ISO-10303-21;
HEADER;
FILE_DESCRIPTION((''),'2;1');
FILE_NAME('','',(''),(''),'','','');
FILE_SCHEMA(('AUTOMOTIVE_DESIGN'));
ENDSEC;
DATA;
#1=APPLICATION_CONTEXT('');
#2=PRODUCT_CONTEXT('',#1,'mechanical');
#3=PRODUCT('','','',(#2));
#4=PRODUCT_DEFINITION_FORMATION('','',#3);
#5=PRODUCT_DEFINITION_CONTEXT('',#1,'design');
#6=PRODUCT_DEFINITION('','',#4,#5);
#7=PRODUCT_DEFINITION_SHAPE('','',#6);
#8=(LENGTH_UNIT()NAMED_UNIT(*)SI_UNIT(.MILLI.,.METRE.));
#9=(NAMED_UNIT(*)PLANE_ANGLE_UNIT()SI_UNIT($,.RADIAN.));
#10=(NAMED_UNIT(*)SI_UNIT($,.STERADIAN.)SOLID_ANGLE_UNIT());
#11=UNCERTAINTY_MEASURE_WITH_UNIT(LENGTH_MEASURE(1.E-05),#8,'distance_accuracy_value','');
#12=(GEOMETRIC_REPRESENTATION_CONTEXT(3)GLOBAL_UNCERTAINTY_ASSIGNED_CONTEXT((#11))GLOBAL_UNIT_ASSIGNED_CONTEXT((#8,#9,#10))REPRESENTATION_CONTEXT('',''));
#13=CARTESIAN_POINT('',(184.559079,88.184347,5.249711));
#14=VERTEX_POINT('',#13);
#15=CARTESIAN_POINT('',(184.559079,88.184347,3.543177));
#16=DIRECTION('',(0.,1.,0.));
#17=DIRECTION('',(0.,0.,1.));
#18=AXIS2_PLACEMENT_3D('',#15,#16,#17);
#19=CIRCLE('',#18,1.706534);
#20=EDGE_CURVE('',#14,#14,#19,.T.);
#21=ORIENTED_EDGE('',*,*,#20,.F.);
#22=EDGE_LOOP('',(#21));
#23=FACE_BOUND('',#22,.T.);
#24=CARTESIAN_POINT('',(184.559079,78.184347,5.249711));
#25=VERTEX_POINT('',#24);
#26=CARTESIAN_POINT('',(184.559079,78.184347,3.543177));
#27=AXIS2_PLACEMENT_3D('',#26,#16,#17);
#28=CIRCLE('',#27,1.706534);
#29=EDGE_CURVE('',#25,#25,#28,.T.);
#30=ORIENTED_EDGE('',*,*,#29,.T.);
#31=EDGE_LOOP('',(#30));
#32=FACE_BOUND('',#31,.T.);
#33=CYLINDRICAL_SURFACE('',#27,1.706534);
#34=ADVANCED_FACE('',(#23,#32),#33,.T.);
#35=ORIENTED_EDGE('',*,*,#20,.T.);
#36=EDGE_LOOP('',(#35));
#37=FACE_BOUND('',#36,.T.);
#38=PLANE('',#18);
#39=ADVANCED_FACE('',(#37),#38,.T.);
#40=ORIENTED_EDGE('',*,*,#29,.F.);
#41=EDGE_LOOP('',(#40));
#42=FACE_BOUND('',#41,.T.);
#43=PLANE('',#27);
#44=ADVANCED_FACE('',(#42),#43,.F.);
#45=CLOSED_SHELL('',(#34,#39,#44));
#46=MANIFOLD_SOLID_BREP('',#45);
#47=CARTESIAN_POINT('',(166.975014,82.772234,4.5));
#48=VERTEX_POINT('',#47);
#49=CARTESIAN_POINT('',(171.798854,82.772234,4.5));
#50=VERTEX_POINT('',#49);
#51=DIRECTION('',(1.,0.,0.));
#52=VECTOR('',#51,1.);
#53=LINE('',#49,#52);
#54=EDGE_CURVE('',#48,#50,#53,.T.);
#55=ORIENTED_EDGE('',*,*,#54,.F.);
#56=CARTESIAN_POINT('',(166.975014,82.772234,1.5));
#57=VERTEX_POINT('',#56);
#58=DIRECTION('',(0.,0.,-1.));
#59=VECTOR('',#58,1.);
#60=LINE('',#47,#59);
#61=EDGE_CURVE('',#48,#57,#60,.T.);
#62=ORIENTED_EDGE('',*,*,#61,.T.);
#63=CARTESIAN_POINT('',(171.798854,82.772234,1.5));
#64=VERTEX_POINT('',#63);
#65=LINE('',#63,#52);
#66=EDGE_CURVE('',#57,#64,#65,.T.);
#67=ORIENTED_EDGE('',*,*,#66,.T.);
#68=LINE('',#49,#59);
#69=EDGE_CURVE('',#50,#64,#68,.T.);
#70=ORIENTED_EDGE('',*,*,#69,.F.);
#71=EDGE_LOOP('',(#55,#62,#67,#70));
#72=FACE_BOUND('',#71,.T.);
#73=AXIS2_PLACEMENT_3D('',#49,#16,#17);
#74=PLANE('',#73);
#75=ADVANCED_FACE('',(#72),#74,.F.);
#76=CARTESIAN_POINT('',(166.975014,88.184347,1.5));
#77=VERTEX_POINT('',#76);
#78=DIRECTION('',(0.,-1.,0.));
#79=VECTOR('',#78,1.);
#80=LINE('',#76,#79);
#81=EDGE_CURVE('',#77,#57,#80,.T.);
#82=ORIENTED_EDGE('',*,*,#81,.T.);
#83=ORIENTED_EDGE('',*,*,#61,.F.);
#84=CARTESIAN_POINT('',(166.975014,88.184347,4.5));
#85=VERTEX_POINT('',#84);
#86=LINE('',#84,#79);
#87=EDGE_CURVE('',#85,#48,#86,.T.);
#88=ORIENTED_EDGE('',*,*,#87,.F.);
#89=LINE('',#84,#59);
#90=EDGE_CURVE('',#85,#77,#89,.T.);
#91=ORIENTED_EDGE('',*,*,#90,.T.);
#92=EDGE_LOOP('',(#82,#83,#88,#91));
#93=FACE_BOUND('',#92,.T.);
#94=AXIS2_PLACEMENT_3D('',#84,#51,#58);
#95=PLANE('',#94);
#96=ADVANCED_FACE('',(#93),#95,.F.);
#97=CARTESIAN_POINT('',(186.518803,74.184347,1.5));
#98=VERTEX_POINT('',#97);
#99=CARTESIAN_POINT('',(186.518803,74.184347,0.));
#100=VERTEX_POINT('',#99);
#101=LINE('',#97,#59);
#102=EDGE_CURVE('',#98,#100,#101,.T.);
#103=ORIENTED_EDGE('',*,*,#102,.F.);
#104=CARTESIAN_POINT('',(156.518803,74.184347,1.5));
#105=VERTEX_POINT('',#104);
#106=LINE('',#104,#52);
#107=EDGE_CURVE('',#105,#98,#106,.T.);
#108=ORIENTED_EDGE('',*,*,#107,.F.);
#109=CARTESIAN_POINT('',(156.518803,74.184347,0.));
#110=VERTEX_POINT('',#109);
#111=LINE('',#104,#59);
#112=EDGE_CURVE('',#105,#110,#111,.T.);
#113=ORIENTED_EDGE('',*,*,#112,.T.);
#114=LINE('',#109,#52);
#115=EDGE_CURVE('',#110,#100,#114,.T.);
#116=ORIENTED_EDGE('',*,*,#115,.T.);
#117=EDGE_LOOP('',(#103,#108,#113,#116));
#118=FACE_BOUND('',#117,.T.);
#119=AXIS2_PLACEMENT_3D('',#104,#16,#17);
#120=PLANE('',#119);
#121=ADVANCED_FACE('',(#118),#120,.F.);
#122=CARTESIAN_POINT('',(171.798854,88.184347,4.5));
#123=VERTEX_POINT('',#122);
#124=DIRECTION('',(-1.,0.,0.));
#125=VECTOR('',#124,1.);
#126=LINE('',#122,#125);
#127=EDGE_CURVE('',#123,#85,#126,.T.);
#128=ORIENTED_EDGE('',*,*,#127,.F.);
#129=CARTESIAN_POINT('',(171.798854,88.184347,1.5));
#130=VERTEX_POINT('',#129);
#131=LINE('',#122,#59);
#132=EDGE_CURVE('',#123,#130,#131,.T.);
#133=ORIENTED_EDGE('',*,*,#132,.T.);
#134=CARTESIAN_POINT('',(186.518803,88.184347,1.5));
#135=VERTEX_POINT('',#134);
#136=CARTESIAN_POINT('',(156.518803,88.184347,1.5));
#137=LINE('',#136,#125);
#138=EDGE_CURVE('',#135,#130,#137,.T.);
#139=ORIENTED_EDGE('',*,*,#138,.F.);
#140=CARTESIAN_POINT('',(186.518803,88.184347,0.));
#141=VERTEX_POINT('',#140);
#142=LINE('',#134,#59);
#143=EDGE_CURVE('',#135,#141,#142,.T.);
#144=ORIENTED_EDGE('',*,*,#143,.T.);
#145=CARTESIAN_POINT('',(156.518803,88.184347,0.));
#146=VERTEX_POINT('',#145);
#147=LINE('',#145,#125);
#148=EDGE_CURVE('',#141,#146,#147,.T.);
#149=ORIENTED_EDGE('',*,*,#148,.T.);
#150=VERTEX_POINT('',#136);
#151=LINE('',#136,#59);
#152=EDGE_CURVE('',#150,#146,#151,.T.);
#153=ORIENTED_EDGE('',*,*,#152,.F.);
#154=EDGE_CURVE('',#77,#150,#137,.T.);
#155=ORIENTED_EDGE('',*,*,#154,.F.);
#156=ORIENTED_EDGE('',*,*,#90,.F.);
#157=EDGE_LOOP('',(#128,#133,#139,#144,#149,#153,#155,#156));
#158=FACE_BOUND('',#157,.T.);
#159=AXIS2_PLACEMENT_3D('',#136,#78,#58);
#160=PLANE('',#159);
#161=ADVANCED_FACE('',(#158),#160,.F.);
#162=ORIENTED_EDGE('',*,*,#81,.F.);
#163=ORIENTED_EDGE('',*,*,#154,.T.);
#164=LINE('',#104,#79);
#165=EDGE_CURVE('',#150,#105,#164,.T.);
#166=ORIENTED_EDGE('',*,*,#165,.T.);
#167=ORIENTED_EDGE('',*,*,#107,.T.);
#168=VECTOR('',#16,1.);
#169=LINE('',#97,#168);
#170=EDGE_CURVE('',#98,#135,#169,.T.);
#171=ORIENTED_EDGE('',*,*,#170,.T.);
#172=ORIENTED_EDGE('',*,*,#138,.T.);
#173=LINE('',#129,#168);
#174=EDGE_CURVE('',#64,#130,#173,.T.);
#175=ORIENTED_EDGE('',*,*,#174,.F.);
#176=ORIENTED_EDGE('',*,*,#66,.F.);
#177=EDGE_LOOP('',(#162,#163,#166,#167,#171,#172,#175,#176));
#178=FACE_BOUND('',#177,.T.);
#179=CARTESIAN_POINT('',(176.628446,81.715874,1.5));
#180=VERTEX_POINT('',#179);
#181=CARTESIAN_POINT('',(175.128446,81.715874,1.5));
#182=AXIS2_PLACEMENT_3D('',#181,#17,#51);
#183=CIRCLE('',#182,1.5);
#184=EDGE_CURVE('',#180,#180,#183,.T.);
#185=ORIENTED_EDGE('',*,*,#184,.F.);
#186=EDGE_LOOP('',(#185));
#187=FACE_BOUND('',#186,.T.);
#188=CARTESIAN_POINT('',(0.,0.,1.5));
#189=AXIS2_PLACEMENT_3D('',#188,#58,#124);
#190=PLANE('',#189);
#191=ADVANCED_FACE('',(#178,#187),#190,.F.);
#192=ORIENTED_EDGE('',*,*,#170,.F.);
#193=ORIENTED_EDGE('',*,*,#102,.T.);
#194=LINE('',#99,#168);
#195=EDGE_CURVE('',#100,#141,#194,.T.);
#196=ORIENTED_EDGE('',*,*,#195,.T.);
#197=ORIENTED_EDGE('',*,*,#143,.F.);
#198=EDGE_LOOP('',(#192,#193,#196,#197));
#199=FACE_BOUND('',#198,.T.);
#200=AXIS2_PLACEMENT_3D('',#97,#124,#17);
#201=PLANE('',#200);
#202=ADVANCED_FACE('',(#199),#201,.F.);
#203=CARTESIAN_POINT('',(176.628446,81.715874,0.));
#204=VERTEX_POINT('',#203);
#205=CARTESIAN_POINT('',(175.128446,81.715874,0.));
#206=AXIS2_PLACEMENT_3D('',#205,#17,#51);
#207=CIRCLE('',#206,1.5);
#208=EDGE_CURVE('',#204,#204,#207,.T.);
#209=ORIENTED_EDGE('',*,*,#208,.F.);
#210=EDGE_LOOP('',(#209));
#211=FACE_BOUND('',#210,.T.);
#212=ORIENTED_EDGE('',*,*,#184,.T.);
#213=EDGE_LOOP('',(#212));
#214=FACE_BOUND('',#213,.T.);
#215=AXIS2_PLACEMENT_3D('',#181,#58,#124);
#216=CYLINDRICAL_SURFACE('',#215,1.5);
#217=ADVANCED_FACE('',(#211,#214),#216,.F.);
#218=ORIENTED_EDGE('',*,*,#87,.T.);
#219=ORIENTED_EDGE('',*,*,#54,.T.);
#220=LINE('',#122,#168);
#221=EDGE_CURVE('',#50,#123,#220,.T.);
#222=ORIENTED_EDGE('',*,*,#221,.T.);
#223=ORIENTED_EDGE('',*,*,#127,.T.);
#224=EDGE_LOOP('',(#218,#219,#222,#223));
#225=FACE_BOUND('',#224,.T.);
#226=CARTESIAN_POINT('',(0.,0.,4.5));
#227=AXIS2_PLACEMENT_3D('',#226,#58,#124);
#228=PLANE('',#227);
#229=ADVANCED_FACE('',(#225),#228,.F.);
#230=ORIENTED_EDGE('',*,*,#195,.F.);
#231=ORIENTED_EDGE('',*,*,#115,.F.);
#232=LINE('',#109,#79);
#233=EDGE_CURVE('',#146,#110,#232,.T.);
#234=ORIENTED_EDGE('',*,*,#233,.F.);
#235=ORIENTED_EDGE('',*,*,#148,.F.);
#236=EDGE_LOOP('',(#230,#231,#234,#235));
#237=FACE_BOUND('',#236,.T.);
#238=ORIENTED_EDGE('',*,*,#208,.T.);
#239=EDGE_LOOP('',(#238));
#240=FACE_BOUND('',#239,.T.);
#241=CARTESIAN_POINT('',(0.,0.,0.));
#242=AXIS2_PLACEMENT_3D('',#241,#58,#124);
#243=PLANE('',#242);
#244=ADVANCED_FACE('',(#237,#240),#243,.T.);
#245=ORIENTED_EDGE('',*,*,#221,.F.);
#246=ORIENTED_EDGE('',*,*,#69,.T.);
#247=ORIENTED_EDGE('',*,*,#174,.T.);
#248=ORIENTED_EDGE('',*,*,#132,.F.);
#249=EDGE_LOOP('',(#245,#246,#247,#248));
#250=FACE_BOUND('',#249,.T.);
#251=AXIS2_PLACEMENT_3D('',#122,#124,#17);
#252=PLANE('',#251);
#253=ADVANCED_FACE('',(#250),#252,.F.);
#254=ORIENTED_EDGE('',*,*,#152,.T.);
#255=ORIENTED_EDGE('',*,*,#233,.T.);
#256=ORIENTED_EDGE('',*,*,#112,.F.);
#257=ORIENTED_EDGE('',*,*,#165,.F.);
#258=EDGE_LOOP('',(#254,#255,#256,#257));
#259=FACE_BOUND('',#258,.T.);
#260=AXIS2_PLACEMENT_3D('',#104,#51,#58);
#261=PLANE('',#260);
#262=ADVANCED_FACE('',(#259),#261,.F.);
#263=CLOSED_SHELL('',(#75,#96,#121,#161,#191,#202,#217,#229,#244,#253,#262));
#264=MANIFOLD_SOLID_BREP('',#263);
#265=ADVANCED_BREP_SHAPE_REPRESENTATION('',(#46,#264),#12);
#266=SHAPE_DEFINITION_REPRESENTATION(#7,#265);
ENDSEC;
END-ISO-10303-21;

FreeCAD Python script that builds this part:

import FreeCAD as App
import Part
import Sketcher

doc = App.newDocument("Part")
body = doc.addObject("PartDesign::Body", "Body")

# Sketch on XY plane
sketch1 = body.newObject("Sketcher::SketchObject", "Sketch")
sketch1.AttachmentSupport = (doc.getObject("XY_Plane"), [""])
sketch1.MapMode = "FlatFace"
sketch1.addGeometry(Part.LineSegment(App.Vector(156.5, 88.2, 0), App.Vector(156.5, 74.2, 0)), False)
sketch1.addGeometry(Part.LineSegment(App.Vector(156.5, 74.2, 0), App.Vector(186.5, 74.2, 0)), False)
sketch1.addGeometry(Part.LineSegment(App.Vector(186.5, 74.2, 0), App.Vector(186.5, 88.2, 0)), False)
sketch1.addGeometry(Part.LineSegment(App.Vector(186.5, 88.2, 0), App.Vector(156.5, 88.2, 0)), False)
sketch1.addGeometry(Part.Circle(App.Vector(175.1, 81.7, 0), App.Vector(0, 0, 1), 1.5), False)
sketch1.addConstraint(Sketcher.Constraint("Coincident", 0, 2, 1, 1))
sketch1.addConstraint(Sketcher.Constraint("Coincident", 1, 2, 2, 1))
sketch1.addConstraint(Sketcher.Constraint("Coincident", 2, 2, 3, 1))
sketch1.addConstraint(Sketcher.Constraint("Coincident", 3, 2, 0, 1))
sketch1.addConstraint(Sketcher.Constraint("Vertical", 0))
sketch1.addConstraint(Sketcher.Constraint("Horizontal", 1))
sketch1.addConstraint(Sketcher.Constraint("Vertical", 2))
sketch1.addConstraint(Sketcher.Constraint("Horizontal", 3))
sketch1.addConstraint(Sketcher.Constraint("Diameter", 4, 3.0))
sketch1.addConstraint(Sketcher.Constraint("DistanceX", 1, 1, 1, 2, 30.0))
sketch1.addConstraint(Sketcher.Constraint("DistanceY", 0, 2, 0, 1, 14.0))
sketch1.addConstraint(Sketcher.Constraint("DistanceX", -1, 1, 4, 3, 175.128446))
sketch1.addConstraint(Sketcher.Constraint("DistanceY", -1, 1, 4, 3, 81.715874))
sketch1.addConstraint(Sketcher.Constraint("DistanceX", -1, 1, 0, 2, 156.518803))
sketch1.addConstraint(Sketcher.Constraint("DistanceY", -1, 1, 0, 2, 74.184347))
pad1 = body.newObject("PartDesign::Pad", "Pad")
pad1.Profile = sketch1
pad1.Length = 1.5

# Sketch on XY plane
sketch2 = body.newObject("Sketcher::SketchObject", "Sketch001")
sketch2.AttachmentSupport = (doc.getObject("XY_Plane"), [""])
sketch2.MapMode = "FlatFace"
sketch2.AttachmentOffset = App.Placement(App.Vector(0, 0, 1.5), App.Rotation())
sketch2.addGeometry(Part.LineSegment(App.Vector(167, 88.2, 0), App.Vector(167, 82.8, 0)), False)
sketch2.addGeometry(Part.LineSegment(App.Vector(167, 82.8, 0), App.Vector(171.8, 82.8, 0)), False)
sketch2.addGeometry(Part.LineSegment(App.Vector(171.8, 82.8, 0), App.Vector(171.8, 88.2, 0)), False)
sketch2.addGeometry(Part.LineSegment(App.Vector(171.8, 88.2, 0), App.Vector(167, 88.2, 0)), False)
sketch2.addConstraint(Sketcher.Constraint("Coincident", 0, 2, 1, 1))
sketch2.addConstraint(Sketcher.Constraint("Coincident", 1, 2, 2, 1))
sketch2.addConstraint(Sketcher.Constraint("Coincident", 2, 2, 3, 1))
sketch2.addConstraint(Sketcher.Constraint("Coincident", 3, 2, 0, 1))
sketch2.addConstraint(Sketcher.Constraint("Vertical", 0))
sketch2.addConstraint(Sketcher.Constraint("Horizontal", 1))
sketch2.addConstraint(Sketcher.Constraint("Vertical", 2))
sketch2.addConstraint(Sketcher.Constraint("Horizontal", 3))
sketch2.addConstraint(Sketcher.Constraint("DistanceX", 1, 1, 1, 2, 4.82384))
sketch2.addConstraint(Sketcher.Constraint("DistanceY", 0, 2, 0, 1, 5.412113))
sketch2.addConstraint(Sketcher.Constraint("DistanceX", -1, 1, 0, 2, 166.975014))
sketch2.addConstraint(Sketcher.Constraint("DistanceY", -1, 1, 0, 2, 82.772234))
pad2 = body.newObject("PartDesign::Pad", "Pad001")
pad2.Profile = sketch2
pad2.Length = 3
body2 = doc.addObject("PartDesign::Body", "Body001")

# Sketch on XZ plane
sketch3 = body2.newObject("Sketcher::SketchObject", "Sketch002")
sketch3.AttachmentSupport = (doc.getObject("XZ_Plane001"), [""])
sketch3.MapMode = "FlatFace"
sketch3.AttachmentOffset = App.Placement(App.Vector(0, 0, -88.184347), App.Rotation())
sketch3.addGeometry(Part.Circle(App.Vector(184.6, 3.5, 0), App.Vector(0, 0, 1), 1.7), False)
sketch3.addConstraint(Sketcher.Constraint("Diameter", 0, 3.413068))
sketch3.addConstraint(Sketcher.Constraint("DistanceX", -1, 1, 0, 3, 184.559079))
sketch3.addConstraint(Sketcher.Constraint("DistanceY", -1, 1, 0, 3, 3.543177))
pad3 = body2.newObject("PartDesign::Pad", "Pad002")
pad3.Profile = sketch3
pad3.Length = 10

doc.recompute()
